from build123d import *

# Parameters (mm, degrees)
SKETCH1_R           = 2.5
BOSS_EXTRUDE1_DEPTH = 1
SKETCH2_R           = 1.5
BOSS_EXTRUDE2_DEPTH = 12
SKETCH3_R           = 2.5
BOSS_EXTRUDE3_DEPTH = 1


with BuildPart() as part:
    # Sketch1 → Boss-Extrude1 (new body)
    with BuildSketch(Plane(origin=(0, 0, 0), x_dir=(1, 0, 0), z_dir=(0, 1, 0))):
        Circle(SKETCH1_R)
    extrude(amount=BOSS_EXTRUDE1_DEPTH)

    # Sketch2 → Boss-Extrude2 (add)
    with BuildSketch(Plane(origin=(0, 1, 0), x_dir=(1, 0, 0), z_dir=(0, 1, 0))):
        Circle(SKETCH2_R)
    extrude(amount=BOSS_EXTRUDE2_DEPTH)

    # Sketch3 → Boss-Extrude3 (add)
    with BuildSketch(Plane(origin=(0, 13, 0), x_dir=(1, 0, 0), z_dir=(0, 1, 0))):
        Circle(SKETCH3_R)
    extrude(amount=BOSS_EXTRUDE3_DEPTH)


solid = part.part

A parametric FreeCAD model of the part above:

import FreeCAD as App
import Part
import Sketcher

doc = App.newDocument("Part")
params = doc.addObject("Spreadsheet::Sheet", "Params")
for row, (alias, value) in enumerate([
    ("sketch1_diameter", "5 mm"),
    ("pad1_length", "1 mm"),
    ("sketch2_diameter", "3 mm"),
    ("pad2_length", "12 mm"),
    ("sketch3_diameter", "5 mm"),
    ("pad3_length", "1 mm"),
], start=1):
    params.set(f"A{row}", alias)
    params.set(f"B{row}", "=" + value)
    params.setAlias(f"B{row}", alias)

body = doc.addObject("PartDesign::Body", "Body")

sketch1 = body.newObject("Sketcher::SketchObject", "Sketch")
sketch1.AttachmentSupport = (doc.getObject("XZ_Plane"), [""])
sketch1.MapMode = "FlatFace"
sketch1.addGeometry(Part.Circle(App.Vector(0, 0, 0), App.Vector(0, 0, 1), 2.5), False)
sketch1.addConstraint([
    Sketcher.Constraint("Coincident", 0, 3, -1, 1),
    Sketcher.Constraint("Diameter", 0, 5.0),
])
sketch1.setExpression("Constraints[1]", "Params.sketch1_diameter")
pad1 = body.newObject("PartDesign::Pad", "Pad")
pad1.Profile = sketch1
pad1.setExpression("Length", "Params.pad1_length")
pad1.Reversed = True

sketch2 = body.newObject("Sketcher::SketchObject", "Sketch001")
sketch2.AttachmentSupport = (doc.getObject("XZ_Plane"), [""])
sketch2.MapMode = "FlatFace"
sketch2.AttachmentOffset = App.Placement(App.Vector(0, 0, -1), App.Rotation())
sketch2.addGeometry(Part.Circle(App.Vector(0, 0, 0), App.Vector(0, 0, 1), 1.5), False)
sketch2.addConstraint([
    Sketcher.Constraint("Coincident", 0, 3, -1, 1),
    Sketcher.Constraint("Diameter", 0, 3.0),
])
sketch2.setExpression("Constraints[1]", "Params.sketch2_diameter")
pad2 = body.newObject("PartDesign::Pad", "Pad001")
pad2.Profile = sketch2
pad2.setExpression("Length", "Params.pad2_length")
pad2.Reversed = True

sketch3 = body.newObject("Sketcher::SketchObject", "Sketch002")
sketch3.AttachmentSupport = (doc.getObject("XZ_Plane"), [""])
sketch3.MapMode = "FlatFace"
sketch3.AttachmentOffset = App.Placement(App.Vector(0, 0, -13), App.Rotation())
sketch3.addGeometry(Part.Circle(App.Vector(0, 0, 0), App.Vector(0, 0, 1), 2.5), False)
sketch3.addConstraint([
    Sketcher.Constraint("Coincident", 0, 3, -1, 1),
    Sketcher.Constraint("Diameter", 0, 5.0),
])
sketch3.setExpression("Constraints[1]", "Params.sketch3_diameter")
pad3 = body.newObject("PartDesign::Pad", "Pad002")
pad3.Profile = sketch3
pad3.setExpression("Length", "Params.pad3_length")
pad3.Reversed = True

doc.recompute()
